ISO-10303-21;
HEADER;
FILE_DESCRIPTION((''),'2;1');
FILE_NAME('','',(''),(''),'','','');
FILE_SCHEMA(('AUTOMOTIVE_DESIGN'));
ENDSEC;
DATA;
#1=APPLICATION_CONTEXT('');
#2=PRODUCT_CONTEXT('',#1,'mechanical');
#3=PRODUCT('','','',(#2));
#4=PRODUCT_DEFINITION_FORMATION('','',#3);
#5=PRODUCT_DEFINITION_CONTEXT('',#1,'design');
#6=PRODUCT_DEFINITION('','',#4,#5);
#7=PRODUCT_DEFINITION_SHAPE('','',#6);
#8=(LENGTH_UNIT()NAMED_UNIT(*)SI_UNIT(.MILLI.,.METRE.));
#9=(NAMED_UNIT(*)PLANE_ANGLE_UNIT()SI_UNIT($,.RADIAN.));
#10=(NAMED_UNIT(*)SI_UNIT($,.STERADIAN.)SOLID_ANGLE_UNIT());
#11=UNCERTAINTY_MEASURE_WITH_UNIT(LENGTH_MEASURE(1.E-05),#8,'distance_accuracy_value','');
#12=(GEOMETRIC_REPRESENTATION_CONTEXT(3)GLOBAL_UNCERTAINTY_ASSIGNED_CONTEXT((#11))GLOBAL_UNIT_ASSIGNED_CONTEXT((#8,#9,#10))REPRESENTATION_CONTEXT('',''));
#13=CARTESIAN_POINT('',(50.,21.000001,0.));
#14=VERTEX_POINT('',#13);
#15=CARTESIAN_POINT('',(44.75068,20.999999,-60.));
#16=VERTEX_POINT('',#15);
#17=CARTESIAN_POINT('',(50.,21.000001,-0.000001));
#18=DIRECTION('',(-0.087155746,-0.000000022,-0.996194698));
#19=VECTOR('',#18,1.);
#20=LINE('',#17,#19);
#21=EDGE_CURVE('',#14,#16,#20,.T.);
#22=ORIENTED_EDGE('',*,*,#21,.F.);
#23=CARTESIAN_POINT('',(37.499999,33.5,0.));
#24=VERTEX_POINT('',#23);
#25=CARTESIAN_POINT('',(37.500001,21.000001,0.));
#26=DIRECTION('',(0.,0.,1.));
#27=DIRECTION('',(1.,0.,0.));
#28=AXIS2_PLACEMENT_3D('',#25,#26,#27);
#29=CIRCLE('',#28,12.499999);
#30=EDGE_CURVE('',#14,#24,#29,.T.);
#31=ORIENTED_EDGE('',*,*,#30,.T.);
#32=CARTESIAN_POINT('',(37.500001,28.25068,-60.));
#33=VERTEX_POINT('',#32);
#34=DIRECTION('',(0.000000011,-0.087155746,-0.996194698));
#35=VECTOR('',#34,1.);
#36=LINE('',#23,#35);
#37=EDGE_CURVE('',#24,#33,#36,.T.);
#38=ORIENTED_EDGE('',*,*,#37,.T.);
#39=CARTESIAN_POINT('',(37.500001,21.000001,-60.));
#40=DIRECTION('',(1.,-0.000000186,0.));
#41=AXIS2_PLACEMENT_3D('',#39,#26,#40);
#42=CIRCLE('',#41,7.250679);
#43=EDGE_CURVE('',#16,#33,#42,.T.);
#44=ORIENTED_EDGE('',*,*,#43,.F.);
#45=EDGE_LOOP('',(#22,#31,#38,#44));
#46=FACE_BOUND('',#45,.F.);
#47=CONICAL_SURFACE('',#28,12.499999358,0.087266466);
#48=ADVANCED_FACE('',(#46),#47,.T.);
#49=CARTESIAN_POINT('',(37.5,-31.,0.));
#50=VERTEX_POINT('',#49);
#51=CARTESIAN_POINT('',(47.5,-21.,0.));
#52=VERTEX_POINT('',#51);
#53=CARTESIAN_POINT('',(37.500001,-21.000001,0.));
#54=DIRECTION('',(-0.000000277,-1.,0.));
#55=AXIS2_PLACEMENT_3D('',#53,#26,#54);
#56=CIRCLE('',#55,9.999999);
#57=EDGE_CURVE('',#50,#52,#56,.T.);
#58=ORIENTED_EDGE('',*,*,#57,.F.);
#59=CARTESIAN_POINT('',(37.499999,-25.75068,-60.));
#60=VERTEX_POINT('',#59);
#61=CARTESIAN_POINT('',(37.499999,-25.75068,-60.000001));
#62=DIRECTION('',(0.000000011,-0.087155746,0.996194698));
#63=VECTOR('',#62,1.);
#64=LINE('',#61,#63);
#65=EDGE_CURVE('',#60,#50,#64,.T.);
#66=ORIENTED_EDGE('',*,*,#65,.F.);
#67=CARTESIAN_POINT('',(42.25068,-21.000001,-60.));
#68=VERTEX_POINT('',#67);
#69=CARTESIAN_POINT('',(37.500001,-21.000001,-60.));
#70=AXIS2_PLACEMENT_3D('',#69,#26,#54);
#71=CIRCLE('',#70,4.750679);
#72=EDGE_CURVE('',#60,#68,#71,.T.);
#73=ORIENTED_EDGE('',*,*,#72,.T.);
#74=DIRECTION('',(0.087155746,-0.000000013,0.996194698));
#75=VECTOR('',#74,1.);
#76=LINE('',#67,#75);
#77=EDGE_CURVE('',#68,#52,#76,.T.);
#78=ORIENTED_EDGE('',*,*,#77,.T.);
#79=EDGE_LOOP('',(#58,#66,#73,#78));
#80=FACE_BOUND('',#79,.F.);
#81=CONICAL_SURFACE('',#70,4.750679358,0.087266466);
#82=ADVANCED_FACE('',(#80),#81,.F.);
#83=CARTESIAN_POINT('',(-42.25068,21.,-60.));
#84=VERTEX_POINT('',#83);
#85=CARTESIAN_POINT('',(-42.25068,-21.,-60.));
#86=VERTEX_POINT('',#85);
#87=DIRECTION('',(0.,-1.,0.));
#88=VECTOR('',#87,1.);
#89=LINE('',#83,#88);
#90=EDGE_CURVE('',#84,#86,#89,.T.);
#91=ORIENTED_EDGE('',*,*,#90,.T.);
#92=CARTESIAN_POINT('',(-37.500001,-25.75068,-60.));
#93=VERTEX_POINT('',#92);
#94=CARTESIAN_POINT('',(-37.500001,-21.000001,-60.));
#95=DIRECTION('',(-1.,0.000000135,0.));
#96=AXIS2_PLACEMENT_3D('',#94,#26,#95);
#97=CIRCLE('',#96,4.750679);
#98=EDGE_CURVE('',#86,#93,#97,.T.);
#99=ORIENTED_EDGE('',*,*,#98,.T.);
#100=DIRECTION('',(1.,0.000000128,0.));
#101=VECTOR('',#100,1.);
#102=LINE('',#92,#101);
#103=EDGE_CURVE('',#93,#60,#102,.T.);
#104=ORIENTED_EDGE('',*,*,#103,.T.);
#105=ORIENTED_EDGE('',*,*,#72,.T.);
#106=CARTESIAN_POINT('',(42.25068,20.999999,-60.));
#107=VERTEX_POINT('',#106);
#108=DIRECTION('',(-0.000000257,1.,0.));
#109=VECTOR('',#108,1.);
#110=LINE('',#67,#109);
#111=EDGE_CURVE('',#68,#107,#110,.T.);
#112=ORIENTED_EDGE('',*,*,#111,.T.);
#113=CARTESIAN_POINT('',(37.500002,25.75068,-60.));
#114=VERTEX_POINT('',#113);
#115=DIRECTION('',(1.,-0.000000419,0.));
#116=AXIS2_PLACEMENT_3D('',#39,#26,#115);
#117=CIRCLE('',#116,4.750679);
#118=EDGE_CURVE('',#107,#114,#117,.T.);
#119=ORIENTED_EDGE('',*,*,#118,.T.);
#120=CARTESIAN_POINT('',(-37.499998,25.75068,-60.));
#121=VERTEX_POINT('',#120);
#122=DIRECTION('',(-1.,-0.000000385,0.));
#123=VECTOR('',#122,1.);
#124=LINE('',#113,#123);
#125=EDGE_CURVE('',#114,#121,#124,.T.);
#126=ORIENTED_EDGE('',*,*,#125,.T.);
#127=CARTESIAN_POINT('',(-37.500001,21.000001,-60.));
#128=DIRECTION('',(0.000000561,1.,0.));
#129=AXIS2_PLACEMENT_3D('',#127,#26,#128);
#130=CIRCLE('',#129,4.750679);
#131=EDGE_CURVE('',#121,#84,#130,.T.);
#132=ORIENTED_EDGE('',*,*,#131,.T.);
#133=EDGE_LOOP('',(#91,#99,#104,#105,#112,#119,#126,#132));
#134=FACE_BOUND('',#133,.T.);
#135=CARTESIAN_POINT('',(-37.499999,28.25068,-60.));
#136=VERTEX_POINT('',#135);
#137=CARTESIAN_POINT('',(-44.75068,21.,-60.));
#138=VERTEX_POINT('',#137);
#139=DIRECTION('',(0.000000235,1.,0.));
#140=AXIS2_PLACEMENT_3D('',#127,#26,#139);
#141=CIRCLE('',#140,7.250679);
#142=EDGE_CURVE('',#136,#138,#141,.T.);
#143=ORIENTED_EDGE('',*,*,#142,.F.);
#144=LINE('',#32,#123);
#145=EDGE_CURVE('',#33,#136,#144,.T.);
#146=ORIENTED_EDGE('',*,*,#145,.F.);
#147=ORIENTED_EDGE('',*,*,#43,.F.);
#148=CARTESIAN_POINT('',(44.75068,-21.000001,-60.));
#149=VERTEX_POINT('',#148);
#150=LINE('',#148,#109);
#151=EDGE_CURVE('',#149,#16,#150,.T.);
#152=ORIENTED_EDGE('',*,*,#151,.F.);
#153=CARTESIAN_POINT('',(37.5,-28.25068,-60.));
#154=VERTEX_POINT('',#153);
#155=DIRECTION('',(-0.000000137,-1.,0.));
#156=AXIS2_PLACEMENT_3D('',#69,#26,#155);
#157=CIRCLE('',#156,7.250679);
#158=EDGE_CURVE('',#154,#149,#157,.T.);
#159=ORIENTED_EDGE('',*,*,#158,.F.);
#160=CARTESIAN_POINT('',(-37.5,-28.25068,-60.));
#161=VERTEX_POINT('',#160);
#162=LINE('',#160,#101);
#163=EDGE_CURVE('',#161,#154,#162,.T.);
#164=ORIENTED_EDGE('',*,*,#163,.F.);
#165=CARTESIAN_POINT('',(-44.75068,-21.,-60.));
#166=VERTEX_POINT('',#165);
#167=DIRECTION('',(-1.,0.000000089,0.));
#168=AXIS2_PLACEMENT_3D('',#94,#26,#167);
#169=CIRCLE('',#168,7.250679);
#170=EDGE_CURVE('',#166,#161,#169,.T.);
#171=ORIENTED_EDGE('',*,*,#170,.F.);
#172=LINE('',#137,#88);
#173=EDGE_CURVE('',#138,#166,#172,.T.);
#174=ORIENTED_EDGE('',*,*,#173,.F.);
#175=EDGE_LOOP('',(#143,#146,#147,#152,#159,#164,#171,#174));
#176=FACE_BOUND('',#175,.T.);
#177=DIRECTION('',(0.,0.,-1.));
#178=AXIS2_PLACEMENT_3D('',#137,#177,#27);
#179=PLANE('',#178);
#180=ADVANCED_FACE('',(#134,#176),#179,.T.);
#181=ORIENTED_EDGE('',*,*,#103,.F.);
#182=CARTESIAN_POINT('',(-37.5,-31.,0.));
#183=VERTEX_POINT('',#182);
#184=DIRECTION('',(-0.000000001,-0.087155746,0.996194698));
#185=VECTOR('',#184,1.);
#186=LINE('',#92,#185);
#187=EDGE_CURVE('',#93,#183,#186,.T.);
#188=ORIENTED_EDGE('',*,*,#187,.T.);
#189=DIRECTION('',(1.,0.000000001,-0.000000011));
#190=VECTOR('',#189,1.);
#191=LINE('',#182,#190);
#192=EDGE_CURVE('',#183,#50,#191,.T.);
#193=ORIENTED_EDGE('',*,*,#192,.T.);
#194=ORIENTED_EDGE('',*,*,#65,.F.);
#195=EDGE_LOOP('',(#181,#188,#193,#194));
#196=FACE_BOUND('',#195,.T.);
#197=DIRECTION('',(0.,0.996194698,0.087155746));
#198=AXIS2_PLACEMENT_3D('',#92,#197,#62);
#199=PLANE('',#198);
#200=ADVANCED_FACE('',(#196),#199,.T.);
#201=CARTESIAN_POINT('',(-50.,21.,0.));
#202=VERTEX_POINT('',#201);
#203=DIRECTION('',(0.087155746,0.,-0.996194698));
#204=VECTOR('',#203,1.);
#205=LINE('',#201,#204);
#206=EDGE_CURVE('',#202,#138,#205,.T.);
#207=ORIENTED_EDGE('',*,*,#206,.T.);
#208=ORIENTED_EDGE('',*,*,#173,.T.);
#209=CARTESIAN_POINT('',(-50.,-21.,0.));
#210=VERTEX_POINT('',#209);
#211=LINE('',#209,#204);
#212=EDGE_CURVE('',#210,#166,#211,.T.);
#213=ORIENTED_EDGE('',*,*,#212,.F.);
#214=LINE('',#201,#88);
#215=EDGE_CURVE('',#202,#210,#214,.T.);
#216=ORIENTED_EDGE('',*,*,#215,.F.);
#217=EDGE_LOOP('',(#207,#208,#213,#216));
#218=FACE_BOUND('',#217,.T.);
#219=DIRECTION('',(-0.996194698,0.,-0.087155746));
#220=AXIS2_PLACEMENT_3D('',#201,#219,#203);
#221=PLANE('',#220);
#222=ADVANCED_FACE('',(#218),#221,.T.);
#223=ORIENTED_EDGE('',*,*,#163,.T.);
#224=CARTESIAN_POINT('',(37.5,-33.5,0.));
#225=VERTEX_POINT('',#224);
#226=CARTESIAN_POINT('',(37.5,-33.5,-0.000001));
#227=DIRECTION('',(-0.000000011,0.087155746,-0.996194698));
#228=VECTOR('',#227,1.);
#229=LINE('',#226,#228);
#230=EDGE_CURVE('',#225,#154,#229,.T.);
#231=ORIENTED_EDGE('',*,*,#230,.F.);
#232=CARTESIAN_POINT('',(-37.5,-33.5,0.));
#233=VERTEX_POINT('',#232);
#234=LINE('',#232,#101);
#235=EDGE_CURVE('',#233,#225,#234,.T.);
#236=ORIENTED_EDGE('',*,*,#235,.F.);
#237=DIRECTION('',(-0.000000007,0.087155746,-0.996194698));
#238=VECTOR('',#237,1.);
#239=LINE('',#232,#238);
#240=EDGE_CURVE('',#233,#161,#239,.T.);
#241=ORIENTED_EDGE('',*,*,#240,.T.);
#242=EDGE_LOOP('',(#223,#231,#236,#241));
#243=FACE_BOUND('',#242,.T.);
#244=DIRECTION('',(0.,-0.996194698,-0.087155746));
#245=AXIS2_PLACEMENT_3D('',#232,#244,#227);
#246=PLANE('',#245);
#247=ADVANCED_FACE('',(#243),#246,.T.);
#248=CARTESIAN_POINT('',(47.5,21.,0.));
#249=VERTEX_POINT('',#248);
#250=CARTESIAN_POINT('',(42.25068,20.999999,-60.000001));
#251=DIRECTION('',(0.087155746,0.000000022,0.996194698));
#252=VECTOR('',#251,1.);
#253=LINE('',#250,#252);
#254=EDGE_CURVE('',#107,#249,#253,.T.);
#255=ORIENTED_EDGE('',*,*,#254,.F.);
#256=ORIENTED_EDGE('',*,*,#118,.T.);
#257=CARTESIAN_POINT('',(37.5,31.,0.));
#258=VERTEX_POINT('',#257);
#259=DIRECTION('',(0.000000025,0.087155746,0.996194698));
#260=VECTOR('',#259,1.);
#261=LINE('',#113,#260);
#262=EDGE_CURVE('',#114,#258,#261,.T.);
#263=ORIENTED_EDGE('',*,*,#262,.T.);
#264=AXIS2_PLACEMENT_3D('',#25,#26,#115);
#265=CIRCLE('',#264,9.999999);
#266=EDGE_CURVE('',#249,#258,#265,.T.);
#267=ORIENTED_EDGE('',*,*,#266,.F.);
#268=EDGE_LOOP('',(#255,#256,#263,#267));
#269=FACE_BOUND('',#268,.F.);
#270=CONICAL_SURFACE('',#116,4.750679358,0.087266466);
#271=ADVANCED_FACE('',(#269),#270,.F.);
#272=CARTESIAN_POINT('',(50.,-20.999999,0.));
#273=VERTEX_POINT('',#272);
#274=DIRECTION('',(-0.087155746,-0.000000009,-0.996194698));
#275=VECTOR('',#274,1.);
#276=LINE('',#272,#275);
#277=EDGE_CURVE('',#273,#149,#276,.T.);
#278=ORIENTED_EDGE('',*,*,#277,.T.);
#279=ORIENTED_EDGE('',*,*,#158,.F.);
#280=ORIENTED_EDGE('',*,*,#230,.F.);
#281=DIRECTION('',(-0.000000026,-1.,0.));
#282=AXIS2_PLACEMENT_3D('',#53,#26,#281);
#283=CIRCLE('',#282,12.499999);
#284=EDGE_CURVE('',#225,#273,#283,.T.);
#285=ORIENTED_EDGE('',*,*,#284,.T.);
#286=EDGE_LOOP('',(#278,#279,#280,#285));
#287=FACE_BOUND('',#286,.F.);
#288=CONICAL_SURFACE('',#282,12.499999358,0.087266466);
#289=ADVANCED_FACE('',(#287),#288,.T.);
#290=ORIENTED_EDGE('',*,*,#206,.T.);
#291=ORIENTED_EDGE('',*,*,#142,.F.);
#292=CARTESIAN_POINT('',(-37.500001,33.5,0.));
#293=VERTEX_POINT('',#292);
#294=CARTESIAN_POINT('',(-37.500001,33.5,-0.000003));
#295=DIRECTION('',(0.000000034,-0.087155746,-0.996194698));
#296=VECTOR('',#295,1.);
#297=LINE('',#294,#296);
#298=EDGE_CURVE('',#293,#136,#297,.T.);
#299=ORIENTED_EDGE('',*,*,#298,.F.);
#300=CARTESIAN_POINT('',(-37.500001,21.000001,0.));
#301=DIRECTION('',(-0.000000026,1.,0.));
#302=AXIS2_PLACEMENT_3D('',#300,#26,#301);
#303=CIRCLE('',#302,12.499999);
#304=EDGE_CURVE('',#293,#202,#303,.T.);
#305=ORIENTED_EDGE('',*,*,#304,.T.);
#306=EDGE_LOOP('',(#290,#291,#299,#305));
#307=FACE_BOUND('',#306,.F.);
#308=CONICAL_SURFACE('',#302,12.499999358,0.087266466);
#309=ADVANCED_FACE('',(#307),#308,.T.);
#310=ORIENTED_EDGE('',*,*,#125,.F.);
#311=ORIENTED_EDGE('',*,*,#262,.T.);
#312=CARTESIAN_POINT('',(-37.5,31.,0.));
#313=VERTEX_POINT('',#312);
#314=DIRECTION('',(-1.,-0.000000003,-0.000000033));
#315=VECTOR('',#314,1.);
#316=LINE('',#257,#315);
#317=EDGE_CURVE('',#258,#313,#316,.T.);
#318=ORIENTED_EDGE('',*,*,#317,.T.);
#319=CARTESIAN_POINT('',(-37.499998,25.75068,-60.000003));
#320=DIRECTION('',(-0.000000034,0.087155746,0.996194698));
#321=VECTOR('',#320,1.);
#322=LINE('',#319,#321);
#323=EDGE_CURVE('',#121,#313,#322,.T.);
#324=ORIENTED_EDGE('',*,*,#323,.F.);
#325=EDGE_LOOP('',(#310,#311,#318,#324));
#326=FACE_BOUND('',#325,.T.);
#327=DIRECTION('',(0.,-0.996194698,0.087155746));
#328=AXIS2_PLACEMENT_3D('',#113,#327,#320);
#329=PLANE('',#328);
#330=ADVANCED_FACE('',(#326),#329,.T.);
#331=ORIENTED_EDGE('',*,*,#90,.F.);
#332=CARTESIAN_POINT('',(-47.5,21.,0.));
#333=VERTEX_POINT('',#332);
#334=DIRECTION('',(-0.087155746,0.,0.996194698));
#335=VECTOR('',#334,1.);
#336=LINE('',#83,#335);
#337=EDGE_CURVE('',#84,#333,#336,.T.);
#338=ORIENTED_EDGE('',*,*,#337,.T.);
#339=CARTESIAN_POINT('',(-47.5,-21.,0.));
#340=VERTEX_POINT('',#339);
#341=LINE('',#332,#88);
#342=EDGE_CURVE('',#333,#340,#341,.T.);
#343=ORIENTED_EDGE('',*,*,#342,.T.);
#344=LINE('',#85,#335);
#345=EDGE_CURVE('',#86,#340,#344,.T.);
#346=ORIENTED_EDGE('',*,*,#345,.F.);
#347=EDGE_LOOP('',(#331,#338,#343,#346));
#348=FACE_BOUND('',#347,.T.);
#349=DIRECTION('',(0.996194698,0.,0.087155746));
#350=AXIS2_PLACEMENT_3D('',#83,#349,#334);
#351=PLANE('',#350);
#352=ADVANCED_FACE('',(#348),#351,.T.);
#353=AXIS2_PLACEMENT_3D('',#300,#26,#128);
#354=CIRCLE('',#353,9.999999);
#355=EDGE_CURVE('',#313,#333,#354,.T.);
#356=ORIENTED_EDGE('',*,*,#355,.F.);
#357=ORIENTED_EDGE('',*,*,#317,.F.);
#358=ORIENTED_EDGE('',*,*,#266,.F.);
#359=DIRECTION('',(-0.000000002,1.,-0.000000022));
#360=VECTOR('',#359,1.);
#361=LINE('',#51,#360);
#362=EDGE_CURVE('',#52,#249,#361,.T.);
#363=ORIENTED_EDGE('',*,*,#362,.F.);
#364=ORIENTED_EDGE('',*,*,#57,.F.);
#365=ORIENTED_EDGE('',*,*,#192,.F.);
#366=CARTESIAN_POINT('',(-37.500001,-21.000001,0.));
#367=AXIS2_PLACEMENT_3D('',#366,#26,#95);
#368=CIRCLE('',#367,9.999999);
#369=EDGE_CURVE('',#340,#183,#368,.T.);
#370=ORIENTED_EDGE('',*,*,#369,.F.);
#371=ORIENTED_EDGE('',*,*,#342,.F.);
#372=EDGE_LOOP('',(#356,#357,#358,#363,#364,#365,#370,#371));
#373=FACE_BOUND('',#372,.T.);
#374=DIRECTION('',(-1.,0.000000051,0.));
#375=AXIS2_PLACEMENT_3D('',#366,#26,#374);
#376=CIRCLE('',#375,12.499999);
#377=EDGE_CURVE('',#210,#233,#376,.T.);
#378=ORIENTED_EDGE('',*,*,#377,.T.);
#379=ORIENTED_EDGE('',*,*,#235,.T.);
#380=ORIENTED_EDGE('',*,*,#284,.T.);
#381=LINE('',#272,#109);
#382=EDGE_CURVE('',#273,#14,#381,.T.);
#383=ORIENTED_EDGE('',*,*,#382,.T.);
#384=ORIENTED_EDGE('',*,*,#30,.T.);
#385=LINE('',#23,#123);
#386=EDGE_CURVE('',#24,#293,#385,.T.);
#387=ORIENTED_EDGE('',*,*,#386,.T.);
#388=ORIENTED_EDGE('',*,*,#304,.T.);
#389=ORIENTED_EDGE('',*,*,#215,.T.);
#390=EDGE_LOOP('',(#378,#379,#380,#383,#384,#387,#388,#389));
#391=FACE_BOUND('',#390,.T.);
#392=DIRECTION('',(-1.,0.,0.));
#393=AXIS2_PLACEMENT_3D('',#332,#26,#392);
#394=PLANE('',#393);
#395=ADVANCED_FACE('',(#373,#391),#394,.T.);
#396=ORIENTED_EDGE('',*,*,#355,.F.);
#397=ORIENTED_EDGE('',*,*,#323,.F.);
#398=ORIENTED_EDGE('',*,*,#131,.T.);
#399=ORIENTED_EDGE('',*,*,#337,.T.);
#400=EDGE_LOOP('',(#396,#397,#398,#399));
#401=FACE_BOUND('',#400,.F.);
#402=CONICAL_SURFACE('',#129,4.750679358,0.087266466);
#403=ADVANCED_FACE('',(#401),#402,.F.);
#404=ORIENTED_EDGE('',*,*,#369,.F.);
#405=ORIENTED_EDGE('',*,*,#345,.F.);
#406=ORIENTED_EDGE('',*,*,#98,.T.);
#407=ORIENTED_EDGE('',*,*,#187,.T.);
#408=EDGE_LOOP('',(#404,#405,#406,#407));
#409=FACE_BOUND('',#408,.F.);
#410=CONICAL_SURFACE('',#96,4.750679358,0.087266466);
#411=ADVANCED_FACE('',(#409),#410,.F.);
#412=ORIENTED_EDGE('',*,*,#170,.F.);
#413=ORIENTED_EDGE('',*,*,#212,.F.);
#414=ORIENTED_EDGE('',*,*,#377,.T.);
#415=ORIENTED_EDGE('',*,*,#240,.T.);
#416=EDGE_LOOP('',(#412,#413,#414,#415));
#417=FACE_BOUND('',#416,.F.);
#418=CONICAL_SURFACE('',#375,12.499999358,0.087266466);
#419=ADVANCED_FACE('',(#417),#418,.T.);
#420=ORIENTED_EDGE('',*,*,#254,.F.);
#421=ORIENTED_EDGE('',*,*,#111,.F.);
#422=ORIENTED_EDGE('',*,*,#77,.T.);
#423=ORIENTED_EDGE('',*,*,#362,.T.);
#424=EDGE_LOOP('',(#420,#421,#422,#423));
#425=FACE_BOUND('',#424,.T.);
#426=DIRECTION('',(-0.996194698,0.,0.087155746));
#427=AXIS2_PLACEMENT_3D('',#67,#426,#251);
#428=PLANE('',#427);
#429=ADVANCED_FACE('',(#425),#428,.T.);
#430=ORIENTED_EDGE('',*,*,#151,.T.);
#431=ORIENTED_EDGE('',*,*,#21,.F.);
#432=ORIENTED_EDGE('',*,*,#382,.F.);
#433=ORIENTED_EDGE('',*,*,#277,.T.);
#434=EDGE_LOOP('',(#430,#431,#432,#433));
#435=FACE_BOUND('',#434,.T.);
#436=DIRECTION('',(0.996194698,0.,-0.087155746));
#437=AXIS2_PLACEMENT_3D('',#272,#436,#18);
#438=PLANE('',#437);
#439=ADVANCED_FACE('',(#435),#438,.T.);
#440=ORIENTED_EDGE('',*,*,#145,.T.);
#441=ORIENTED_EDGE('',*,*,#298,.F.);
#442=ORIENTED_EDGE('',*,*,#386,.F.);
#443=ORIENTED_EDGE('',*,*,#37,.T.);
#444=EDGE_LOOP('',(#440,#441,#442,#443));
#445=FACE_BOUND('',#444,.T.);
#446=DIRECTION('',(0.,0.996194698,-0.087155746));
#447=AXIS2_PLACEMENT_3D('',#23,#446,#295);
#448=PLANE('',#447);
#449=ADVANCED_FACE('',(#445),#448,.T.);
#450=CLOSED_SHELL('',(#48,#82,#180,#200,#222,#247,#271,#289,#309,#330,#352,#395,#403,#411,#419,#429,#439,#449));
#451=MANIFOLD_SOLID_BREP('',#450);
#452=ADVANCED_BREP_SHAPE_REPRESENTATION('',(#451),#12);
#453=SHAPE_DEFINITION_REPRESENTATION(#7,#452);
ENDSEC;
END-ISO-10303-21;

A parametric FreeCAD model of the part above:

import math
import FreeCAD as App
import Part
import Sketcher
Q = App.Units.Quantity

doc = App.newDocument("Part")
body = doc.addObject("PartDesign::Body", "Body")

# Sketch on XZ plane
sketch1 = body.newObject("Sketcher::SketchObject", "Sketch")
sketch1.AttachmentSupport = (doc.getObject("XZ_Plane"), [""])
sketch1.MapMode = "FlatFace"
sketch1.addGeometry([
    Part.LineSegment(App.Vector(-44.75068, -60, 0), App.Vector(-42.25068, -60, 0)),
    Part.LineSegment(App.Vector(-42.25068, -60, 0), App.Vector(-47.5, 0, 0)),
    Part.LineSegment(App.Vector(-47.5, 0, 0), App.Vector(-50, 0, 0)),
    Part.LineSegment(App.Vector(-50, 0, 0), App.Vector(-44.75068, -60, 0)),
], False)
sketch1.addConstraint([
    Sketcher.Constraint("Coincident", 0, 2, 1, 1),
    Sketcher.Constraint("Coincident", 1, 2, 2, 1),
    Sketcher.Constraint("Coincident", 2, 2, 3, 1),
    Sketcher.Constraint("Coincident", 3, 2, 0, 1),
    Sketcher.Constraint("Horizontal", 0),
    Sketcher.Constraint("Horizontal", 2),
    Sketcher.Constraint("PointOnObject", 1, 2, -1),
    Sketcher.Constraint("Parallel", 1, 3),
    Sketcher.Constraint("Angle", 1, Q("95 deg")),
    Sketcher.Constraint("DistanceX", 0, 1, 0, 2, 2.5),
    Sketcher.Constraint("DistanceY", 0, 2, -1, 1, 60.0),
    Sketcher.Constraint("DistanceX", 2, 2, -1, 1, 50.0),
])

# Sketch on XY plane
sketch2 = body.newObject("Sketcher::SketchObject", "Sketch001")
sketch2.AttachmentSupport = (doc.getObject("XY_Plane"), [""])
sketch2.MapMode = "FlatFace"
sketch2.addGeometry([
    Part.LineSegment(App.Vector(-47.5, 21, 0), App.Vector(-47.5, -21, 0)),  # 0
    Part.ArcOfCircle(Part.Circle(App.Vector(-37.500001, -21.000001, 0), App.Vector(0, 0, 1), 9.999999), math.radians(179.999996), math.radians(270.000004)),  # 1
    Part.LineSegment(App.Vector(-37.5, -31, 0), App.Vector(37.5, -31, 0)),  # 2
    Part.ArcOfCircle(Part.Circle(App.Vector(37.500001, -21.000001, 0), App.Vector(0, 0, 1), 9.999999), math.radians(-90.000004), math.radians(0.000004)),  # 3
    Part.LineSegment(App.Vector(47.5, -21, 0), App.Vector(47.5, 21, 0)),  # 4
    Part.ArcOfCircle(Part.Circle(App.Vector(37.500001, 21.000001, 0), App.Vector(0, 0, 1), 9.999999), math.radians(-0.000004), math.radians(90.000004)),  # 5
    Part.LineSegment(App.Vector(37.5, 31, 0), App.Vector(-37.5, 31, 0)),  # 6
    Part.ArcOfCircle(Part.Circle(App.Vector(-37.500001, 21.000001, 0), App.Vector(0, 0, 1), 9.999999), math.radians(89.999996), math.radians(180.000004)),  # 7
], False)
sketch2.addConstraint([
    Sketcher.Constraint("Tangent", 0, 2, 1, 1),
    Sketcher.Constraint("Tangent", 1, 2, 2, 1),
    Sketcher.Constraint("Tangent", 2, 2, 3, 1),
    Sketcher.Constraint("Tangent", 3, 2, 4, 1),
    Sketcher.Constraint("Tangent", 4, 2, 5, 1),
    Sketcher.Constraint("Tangent", 5, 2, 6, 1),
    Sketcher.Constraint("Tangent", 6, 2, 7, 1),
    Sketcher.Constraint("Tangent", 7, 2, 0, 1),
    Sketcher.Constraint("Vertical", 0),
    Sketcher.Constraint("Horizontal", 2),
    Sketcher.Constraint("Vertical", 4),
    Sketcher.Constraint("Horizontal", 6),
    Sketcher.Constraint("Equal", 1, 3),
    Sketcher.Constraint("Equal", 3, 5),
    Sketcher.Constraint("Equal", 5, 7),
    Sketcher.Constraint("Symmetric", 1, 3, 5, 3, -1, 1),
    Sketcher.Constraint("Radius", 1, 9.999999),
    Sketcher.Constraint("DistanceX", 2, 1, 2, 2, 75.0),
    Sketcher.Constraint("DistanceY", 0, 2, 0, 1, 42.0),
])
doc.recompute()

additivepipe = body.newObject("PartDesign::AdditivePipe", "AdditivePipe")
additivepipe.Profile = sketch1
additivepipe.Spine = (sketch2, ["Edge1", "Edge2", "Edge3", "Edge4", "Edge5", "Edge6", "Edge7", "Edge8"])

doc.recompute()
